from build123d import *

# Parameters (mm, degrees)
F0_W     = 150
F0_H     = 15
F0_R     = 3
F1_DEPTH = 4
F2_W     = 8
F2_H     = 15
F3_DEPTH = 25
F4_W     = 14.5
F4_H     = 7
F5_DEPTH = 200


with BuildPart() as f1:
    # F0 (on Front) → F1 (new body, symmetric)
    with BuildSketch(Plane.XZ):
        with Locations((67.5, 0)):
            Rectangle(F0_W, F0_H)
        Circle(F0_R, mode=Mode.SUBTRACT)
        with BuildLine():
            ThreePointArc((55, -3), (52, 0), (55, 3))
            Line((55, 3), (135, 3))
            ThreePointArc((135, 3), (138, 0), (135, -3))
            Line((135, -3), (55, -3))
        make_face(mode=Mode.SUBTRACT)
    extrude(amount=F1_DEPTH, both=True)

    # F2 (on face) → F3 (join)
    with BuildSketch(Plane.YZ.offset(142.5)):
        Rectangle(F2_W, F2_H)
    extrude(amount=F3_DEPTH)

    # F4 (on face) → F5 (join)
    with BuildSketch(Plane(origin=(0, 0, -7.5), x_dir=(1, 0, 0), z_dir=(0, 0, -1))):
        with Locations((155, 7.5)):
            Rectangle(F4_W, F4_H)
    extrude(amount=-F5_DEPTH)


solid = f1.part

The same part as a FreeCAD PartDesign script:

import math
import FreeCAD as App
import Part
import Sketcher

V = App.Vector


def add_polygon(sketch, points):
    """Adds a closed chain of lines whose ends are joined by coincident constraints."""
    first, n = sketch.GeometryCount, len(points)
    for a, b in zip(points, points[1:] + points[:1]):
        sketch.addGeometry(Part.LineSegment(App.Vector(*a, 0), App.Vector(*b, 0)), False)
    for i in range(n):
        sketch.addConstraint(Sketcher.Constraint("Coincident", first + i, 2, first + (i + 1) % n, 1))

doc = App.newDocument("Part")
body = doc.addObject("PartDesign::Body", "Body")

sketch1 = body.newObject("Sketcher::SketchObject", "Sketch")
sketch1.AttachmentSupport = (doc.getObject("XZ_Plane"), [""])
sketch1.MapMode = "FlatFace"
add_polygon(sketch1, [(-7.5, 7.5), (-7.5, -7.5), (142.5, -7.5), (142.5, 7.5)])
sketch1.addGeometry(Part.Circle(V(0, 0, 0), V(0, 0, 1), 3), False)
sketch1.addGeometry(Part.LineSegment(V(135, -3, 0), V(55, -3, 0)), False)
sketch1.addGeometry(Part.ArcOfCircle(Part.Circle(V(55, 0, 0), V(0, 0, 1), 3), math.radians(90), math.radians(270)), False)
sketch1.addGeometry(Part.LineSegment(V(55, 3, 0), V(135, 3, 0)), False)
sketch1.addGeometry(Part.ArcOfCircle(Part.Circle(V(135, 0, 0), V(0, 0, 1), 3), math.radians(-90), math.radians(90)), False)
sketch1.addConstraint([
    Sketcher.Constraint("Tangent", 5, 2, 6, 2),
    Sketcher.Constraint("Tangent", 6, 1, 7, 1),
    Sketcher.Constraint("Tangent", 7, 2, 8, 2),
    Sketcher.Constraint("Tangent", 8, 1, 5, 1),
    Sketcher.Constraint("Vertical", 0),
    Sketcher.Constraint("Horizontal", 1),
    Sketcher.Constraint("Vertical", 2),
    Sketcher.Constraint("Horizontal", 3),
    Sketcher.Constraint("Horizontal", 5),
    Sketcher.Constraint("Horizontal", 7),
    Sketcher.Constraint("Coincident", 4, 3, -1, 1),
    Sketcher.Constraint("Equal", 4, 6),
    Sketcher.Constraint("PointOnObject", 6, 3, -1),
    Sketcher.Constraint("Diameter", 4, 6.0),
    Sketcher.Constraint("DistanceX", 1, 1, 1, 2, 150.0),
    Sketcher.Constraint("DistanceX", 5, 2, 5, 1, 80.0),
    Sketcher.Constraint("DistanceY", 0, 2, 0, 1, 15.0),
    Sketcher.Constraint("DistanceX", -1, 1, 6, 3, 55.0),
    Sketcher.Constraint("DistanceX", 0, 2, -1, 1, 7.5),
    Sketcher.Constraint("DistanceY", 0, 2, -1, 1, 7.5),
])
pad1 = body.newObject("PartDesign::Pad", "Pad")
pad1.Profile = sketch1
pad1.Length = 8
pad1.Midplane = True

sketch2 = body.newObject("Sketcher::SketchObject", "Sketch001")
sketch2.AttachmentSupport = (doc.getObject("YZ_Plane"), [""])
sketch2.MapMode = "FlatFace"
sketch2.AttachmentOffset = App.Placement(V(0, 0, 142.5), App.Rotation())
add_polygon(sketch2, [(-4, 8), (-4, -8), (4, -8), (4, 8)])
sketch2.addConstraint([
    Sketcher.Constraint("Vertical", 0),
    Sketcher.Constraint("Horizontal", 1),
    Sketcher.Constraint("Vertical", 2),
    Sketcher.Constraint("Horizontal", 3),
    Sketcher.Constraint("Symmetric", 0, 2, 2, 2, -1, 1),
    Sketcher.Constraint("DistanceX", 1, 1, 1, 2, 8.0),
    Sketcher.Constraint("DistanceY", 0, 2, 0, 1, 15.0),
])
pad2 = body.newObject("PartDesign::Pad", "Pad001")
pad2.Profile = sketch2
pad2.Length = 25

sketch3 = body.newObject("Sketcher::SketchObject", "Sketch002")
sketch3.AttachmentSupport = (doc.getObject("XY_Plane"), [""])
sketch3.MapMode = "FlatFace"
sketch3.AttachmentOffset = App.Placement(V(0, 0, -7.5), App.Rotation())
add_polygon(sketch3, [(148, -11), (148, -4), (162, -4), (162, -11)])
sketch3.addConstraint([
    Sketcher.Constraint("Vertical", 0),
    Sketcher.Constraint("Horizontal", 1),
    Sketcher.Constraint("Vertical", 2),
    Sketcher.Constraint("Horizontal", 3),
    Sketcher.Constraint("DistanceY", 0, 1, 0, 2, 7.0),
    Sketcher.Constraint("DistanceX", 1, 1, 1, 2, 14.5),
    Sketcher.Constraint("DistanceY", 0, 2, -1, 1, 4.0),
    Sketcher.Constraint("DistanceX", -1, 1, 0, 2, 147.75),
])
pad3 = body.newObject("PartDesign::Pad", "Pad002")
pad3.Profile = sketch3
pad3.Length = 200

doc.recompute()
